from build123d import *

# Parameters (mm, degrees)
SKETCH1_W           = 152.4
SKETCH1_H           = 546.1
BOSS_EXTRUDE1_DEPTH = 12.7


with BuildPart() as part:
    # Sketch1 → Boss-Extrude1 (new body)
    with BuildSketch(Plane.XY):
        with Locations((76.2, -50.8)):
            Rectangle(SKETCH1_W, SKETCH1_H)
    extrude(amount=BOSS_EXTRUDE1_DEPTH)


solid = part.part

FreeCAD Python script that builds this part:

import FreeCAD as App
import Part
import Sketcher
from FreeCAD import Vector
Q = App.Units.Quantity


def add_polygon(sketch, points):
    """Adds a closed chain of lines whose ends are joined by coincident constraints."""
    first, n = sketch.GeometryCount, len(points)
    for a, b in zip(points, points[1:] + points[:1]):
        sketch.addGeometry(Part.LineSegment(App.Vector(*a, 0), App.Vector(*b, 0)), False)
    for i in range(n):
        sketch.addConstraint(Sketcher.Constraint("Coincident", first + i, 2, first + (i + 1) % n, 1))

doc = App.newDocument("Part")
body = doc.addObject("PartDesign::Body", "Body")

# Sketch on XY plane
sketch1 = body.newObject("Sketcher::SketchObject", "Sketch")
sketch1.AttachmentSupport = (doc.getObject("XY_Plane"), [""])
sketch1.MapMode = "FlatFace"
add_polygon(sketch1, [(0, 222.25), (0, -323.85), (152.4, -323.85), (152.4, 222.25)])  # lines 0-3
sketch1.addConstraint([
    Sketcher.Constraint("Vertical", 0),
    Sketcher.Constraint("Horizontal", 1),
    Sketcher.Constraint("Vertical", 2),
    Sketcher.Constraint("Horizontal", 3),
    Sketcher.Constraint("PointOnObject", 0, 2, -2),
    Sketcher.Constraint("DistanceX", 1, 1, 1, 2, Q("6 in")),
    Sketcher.Constraint("DistanceY", 0, 2, 0, 1, Q("21.5 in")),
    Sketcher.Constraint("DistanceY", 0, 2, -1, 1, Q("12.75 in")),
])
pad1 = body.newObject("PartDesign::Pad", "Pad")
pad1.Profile = sketch1
pad1.Length = Q("0.5 in")

doc.recompute()
